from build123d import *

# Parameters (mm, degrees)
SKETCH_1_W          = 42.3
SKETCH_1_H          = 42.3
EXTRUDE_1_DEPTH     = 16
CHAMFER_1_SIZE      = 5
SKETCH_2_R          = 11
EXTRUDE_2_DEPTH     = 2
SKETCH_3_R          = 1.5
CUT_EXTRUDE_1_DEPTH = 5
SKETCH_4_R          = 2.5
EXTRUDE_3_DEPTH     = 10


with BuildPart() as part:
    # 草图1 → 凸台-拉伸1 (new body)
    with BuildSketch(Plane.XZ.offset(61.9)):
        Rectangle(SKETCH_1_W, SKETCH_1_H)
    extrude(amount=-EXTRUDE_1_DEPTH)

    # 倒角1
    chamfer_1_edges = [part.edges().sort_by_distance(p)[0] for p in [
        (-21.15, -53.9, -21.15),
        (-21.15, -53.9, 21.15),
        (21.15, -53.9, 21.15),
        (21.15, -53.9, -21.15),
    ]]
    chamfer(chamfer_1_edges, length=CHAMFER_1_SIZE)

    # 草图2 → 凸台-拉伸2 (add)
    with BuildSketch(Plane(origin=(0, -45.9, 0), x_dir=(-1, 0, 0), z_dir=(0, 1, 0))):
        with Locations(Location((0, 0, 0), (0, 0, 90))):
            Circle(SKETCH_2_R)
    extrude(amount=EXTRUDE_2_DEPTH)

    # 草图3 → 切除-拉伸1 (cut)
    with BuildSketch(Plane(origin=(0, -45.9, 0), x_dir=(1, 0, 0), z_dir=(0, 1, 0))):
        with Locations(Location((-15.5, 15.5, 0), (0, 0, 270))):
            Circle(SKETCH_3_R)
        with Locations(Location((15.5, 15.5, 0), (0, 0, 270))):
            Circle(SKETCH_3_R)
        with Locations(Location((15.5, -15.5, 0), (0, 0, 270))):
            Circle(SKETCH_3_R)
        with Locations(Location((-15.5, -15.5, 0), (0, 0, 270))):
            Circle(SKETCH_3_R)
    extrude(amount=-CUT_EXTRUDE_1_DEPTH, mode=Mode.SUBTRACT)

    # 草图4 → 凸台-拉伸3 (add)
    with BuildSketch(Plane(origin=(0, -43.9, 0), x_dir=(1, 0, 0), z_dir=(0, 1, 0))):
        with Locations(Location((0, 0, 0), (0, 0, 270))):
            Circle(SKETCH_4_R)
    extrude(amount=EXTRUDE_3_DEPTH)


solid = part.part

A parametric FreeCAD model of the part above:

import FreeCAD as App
import Part
import Sketcher
from FreeCAD import Vector
Q = App.Units.Quantity


def edges_at(feature, points):
    """Names of the edges that pass closest to the given points."""
    edges = feature.Shape.Edges
    near = lambda p: min(range(len(edges)), key=lambda i: edges[i].distToShape(Part.Vertex(*p))[0])
    return sorted({f"Edge{near(p) + 1}" for p in points})

doc = App.newDocument("Part")
body = doc.addObject("PartDesign::Body", "Body")

# Sketch on XZ plane
sketch1 = body.newObject("Sketcher::SketchObject", "Sketch")
sketch1.AttachmentSupport = (doc.getObject("XZ_Plane"), [""])
sketch1.MapMode = "FlatFace"
sketch1.AttachmentOffset = App.Placement(Vector(0, 0, 61.9), App.Rotation())
sketch1.addGeometry(Part.LineSegment(Vector(-21, 21, 0), Vector(-21, -21, 0)), False)
sketch1.addGeometry(Part.LineSegment(Vector(-21, -21, 0), Vector(21, -21, 0)), False)
sketch1.addGeometry(Part.LineSegment(Vector(21, -21, 0), Vector(21, 21, 0)), False)
sketch1.addGeometry(Part.LineSegment(Vector(21, 21, 0), Vector(-21, 21, 0)), False)
sketch1.addConstraint(Sketcher.Constraint("Coincident", 0, 2, 1, 1))
sketch1.addConstraint(Sketcher.Constraint("Coincident", 1, 2, 2, 1))
sketch1.addConstraint(Sketcher.Constraint("Coincident", 2, 2, 3, 1))
sketch1.addConstraint(Sketcher.Constraint("Coincident", 3, 2, 0, 1))
sketch1.addConstraint(Sketcher.Constraint("Vertical", 0))
sketch1.addConstraint(Sketcher.Constraint("Horizontal", 1))
sketch1.addConstraint(Sketcher.Constraint("Vertical", 2))
sketch1.addConstraint(Sketcher.Constraint("Horizontal", 3))
sketch1.addConstraint(Sketcher.Constraint("Symmetric", 0, 2, 2, 2, -1, 1))
sketch1.addConstraint(Sketcher.Constraint("Equal", 3, 0))
sketch1.addConstraint(Sketcher.Constraint("DistanceX", 1, 1, 1, 2, Q("42.3 mm")))
pad1 = body.newObject("PartDesign::Pad", "Pad")
pad1.Profile = sketch1
pad1.Length = 16
pad1.Reversed = True
doc.recompute()

chamfer = body.newObject("PartDesign::Chamfer", "Chamfer")
chamfer.Base = (pad1, edges_at(pad1, [
    (-21.15, -53.9, -21.15),
    (-21.15, -53.9, 21.15),
    (21.15, -53.9, 21.15),
    (21.15, -53.9, -21.15),
]))
chamfer.Size = 5

# Sketch on XZ plane
sketch2 = body.newObject("Sketcher::SketchObject", "Sketch001")
sketch2.AttachmentSupport = (doc.getObject("XZ_Plane"), [""])
sketch2.MapMode = "FlatFace"
sketch2.AttachmentOffset = App.Placement(Vector(0, 0, 45.9), App.Rotation())
sketch2.addGeometry(Part.Circle(Vector(0, 0, 0), Vector(0, 0, 1), 11), False)
sketch2.addConstraint(Sketcher.Constraint("Coincident", 0, 3, -1, 1))
sketch2.addConstraint(Sketcher.Constraint("Diameter", 0, Q("22 mm")))
pad2 = body.newObject("PartDesign::Pad", "Pad001")
pad2.Profile = sketch2
pad2.Length = 2
pad2.Reversed = True

# Sketch on XZ plane
sketch3 = body.newObject("Sketcher::SketchObject", "Sketch002")
sketch3.AttachmentSupport = (doc.getObject("XZ_Plane"), [""])
sketch3.MapMode = "FlatFace"
sketch3.AttachmentOffset = App.Placement(Vector(0, 0, 45.9), App.Rotation())
sketch3.addGeometry(Part.Circle(Vector(-15.5, -15.5, 0), Vector(0, 0, 1), 1.5), False)
sketch3.addGeometry(Part.Circle(Vector(15.5, -15.5, 0), Vector(0, 0, 1), 1.5), False)
sketch3.addGeometry(Part.Circle(Vector(15.5, 15.5, 0), Vector(0, 0, 1), 1.5), False)
sketch3.addGeometry(Part.Circle(Vector(-15.5, 15.5, 0), Vector(0, 0, 1), 1.5), False)
sketch3.addConstraint(Sketcher.Constraint("Equal", 0, 1))
sketch3.addConstraint(Sketcher.Constraint("Equal", 1, 2))
sketch3.addConstraint(Sketcher.Constraint("Equal", 2, 3))
sketch3.addConstraint(Sketcher.Constraint("Symmetric", 0, 3, 2, 3, -1, 1))
sketch3.addConstraint(Sketcher.Constraint("Symmetric", 1, 3, 3, 3, -1, 1))
sketch3.addConstraint(Sketcher.Constraint("Symmetric", 0, 3, 1, 3, -2))
sketch3.addConstraint(Sketcher.Constraint("Diameter", 0, Q("3 mm")))
sketch3.addConstraint(Sketcher.Constraint("DistanceX", 0, 3, 1, 3, Q("31 mm")))
sketch3.addConstraint(Sketcher.Constraint("DistanceY", 1, 3, 2, 3, Q("31 mm")))
pocket1 = body.newObject("PartDesign::Pocket", "Pocket")
pocket1.Profile = sketch3
pocket1.Length = 5
pocket1.Reversed = True

# Sketch on XZ plane
sketch4 = body.newObject("Sketcher::SketchObject", "Sketch003")
sketch4.AttachmentSupport = (doc.getObject("XZ_Plane"), [""])
sketch4.MapMode = "FlatFace"
sketch4.AttachmentOffset = App.Placement(Vector(0, 0, 43.9), App.Rotation())
sketch4.addGeometry(Part.Circle(Vector(0, 0, 0), Vector(0, 0, 1), 2.5), False)
sketch4.addConstraint(Sketcher.Constraint("Coincident", 0, 3, -1, 1))
sketch4.addConstraint(Sketcher.Constraint("Diameter", 0, Q("5 mm")))
pad3 = body.newObject("PartDesign::Pad", "Pad002")
pad3.Profile = sketch4
pad3.Length = 10
pad3.Reversed = True

doc.recompute()
